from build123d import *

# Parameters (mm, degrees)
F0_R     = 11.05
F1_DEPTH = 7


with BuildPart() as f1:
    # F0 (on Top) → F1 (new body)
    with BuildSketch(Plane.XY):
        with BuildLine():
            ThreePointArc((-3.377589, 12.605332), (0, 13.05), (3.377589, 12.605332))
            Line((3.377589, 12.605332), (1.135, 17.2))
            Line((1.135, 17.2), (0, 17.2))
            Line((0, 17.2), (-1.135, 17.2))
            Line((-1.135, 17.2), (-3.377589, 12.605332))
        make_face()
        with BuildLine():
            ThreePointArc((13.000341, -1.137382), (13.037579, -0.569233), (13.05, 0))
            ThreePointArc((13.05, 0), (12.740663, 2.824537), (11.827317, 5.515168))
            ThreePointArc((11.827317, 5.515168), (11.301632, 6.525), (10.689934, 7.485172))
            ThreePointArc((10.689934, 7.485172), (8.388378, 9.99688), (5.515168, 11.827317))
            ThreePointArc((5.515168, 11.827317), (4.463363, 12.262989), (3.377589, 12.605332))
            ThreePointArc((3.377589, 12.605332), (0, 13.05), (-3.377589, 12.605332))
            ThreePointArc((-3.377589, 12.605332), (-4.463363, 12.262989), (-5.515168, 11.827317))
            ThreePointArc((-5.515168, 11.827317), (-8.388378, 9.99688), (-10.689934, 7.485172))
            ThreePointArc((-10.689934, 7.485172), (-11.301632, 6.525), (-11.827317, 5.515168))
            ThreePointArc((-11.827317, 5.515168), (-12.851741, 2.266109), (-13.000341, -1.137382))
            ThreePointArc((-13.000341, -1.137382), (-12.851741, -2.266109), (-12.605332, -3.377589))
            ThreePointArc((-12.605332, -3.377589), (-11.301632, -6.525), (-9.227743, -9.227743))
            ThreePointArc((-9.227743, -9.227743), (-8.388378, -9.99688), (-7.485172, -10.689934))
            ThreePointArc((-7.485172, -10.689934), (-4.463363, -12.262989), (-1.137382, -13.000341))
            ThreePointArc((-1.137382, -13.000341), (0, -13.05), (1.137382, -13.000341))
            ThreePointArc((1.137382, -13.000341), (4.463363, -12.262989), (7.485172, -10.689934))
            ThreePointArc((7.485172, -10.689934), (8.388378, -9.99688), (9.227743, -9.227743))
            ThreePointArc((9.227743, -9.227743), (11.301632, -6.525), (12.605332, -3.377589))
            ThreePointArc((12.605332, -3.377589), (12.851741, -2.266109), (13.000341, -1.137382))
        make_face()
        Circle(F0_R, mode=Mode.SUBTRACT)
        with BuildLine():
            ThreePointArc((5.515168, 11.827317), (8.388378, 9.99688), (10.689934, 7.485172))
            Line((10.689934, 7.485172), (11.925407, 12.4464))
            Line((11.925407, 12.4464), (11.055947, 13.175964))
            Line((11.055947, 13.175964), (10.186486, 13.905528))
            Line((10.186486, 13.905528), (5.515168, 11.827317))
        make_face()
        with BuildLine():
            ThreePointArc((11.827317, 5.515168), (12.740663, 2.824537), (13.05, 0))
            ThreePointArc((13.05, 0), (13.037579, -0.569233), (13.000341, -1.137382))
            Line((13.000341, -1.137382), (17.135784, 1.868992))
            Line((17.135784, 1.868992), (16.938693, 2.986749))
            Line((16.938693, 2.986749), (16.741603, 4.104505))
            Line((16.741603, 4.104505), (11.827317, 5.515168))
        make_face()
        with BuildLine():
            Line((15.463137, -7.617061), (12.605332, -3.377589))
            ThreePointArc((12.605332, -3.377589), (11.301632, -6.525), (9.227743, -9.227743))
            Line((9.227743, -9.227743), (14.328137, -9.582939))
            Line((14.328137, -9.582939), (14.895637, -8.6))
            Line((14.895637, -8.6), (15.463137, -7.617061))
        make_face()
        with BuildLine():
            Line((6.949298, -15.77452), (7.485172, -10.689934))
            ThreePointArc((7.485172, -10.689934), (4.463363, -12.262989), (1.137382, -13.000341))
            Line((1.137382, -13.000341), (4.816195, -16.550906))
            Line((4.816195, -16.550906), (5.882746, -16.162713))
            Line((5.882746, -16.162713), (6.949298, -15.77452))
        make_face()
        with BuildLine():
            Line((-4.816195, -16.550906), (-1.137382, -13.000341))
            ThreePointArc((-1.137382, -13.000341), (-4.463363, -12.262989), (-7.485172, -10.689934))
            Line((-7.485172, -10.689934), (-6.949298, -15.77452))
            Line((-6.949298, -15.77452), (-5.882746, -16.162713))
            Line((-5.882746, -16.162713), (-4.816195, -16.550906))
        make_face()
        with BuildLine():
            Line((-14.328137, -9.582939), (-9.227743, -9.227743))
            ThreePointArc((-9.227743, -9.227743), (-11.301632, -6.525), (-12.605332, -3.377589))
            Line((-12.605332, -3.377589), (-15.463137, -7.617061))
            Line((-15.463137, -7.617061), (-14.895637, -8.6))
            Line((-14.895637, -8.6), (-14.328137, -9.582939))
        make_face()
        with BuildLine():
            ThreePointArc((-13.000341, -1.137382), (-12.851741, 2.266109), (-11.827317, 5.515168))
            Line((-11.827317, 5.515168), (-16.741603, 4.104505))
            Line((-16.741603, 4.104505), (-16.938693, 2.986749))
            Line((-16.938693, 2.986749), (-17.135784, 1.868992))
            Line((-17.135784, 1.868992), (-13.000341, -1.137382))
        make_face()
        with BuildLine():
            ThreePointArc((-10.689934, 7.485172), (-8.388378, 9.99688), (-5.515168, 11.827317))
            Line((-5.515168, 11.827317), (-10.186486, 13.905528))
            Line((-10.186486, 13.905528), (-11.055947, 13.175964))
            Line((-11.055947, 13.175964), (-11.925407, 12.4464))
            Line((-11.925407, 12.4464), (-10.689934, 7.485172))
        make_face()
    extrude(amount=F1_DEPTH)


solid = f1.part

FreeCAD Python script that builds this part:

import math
import FreeCAD as App
import Part
import Sketcher
Q = App.Units.Quantity

doc = App.newDocument("Part")
body = doc.addObject("PartDesign::Body", "Body")

sketch1 = body.newObject("Sketcher::SketchObject", "Sketch")
sketch1.AttachmentSupport = (doc.getObject("XY_Plane"), [""])
sketch1.MapMode = "FlatFace"
sketch1.addGeometry([
    Part.LineSegment(App.Vector(3.377589, 12.605332, 0), App.Vector(1.135, 17.2, 0)),
    Part.LineSegment(App.Vector(1.135, 17.2, 0), App.Vector(-1.135, 17.2, 0)),
    Part.LineSegment(App.Vector(-1.135, 17.2, 0), App.Vector(-3.377589, 12.605332, 0)),
    Part.ArcOfCircle(Part.Circle(App.Vector(-0.000016, 0.000043, 0), App.Vector(0, 0, 1), 13.049954), math.radians(104.999981), math.radians(115.000013)),
    Part.LineSegment(App.Vector(-5.515168, 11.827317, 0), App.Vector(-10.186486, 13.905528, 0)),
    Part.LineSegment(App.Vector(-10.186486, 13.905528, 0), App.Vector(-11.055947, 13.175964, 0)),
    Part.LineSegment(App.Vector(-11.055947, 13.175964, 0), App.Vector(-11.925407, 12.4464, 0)),
    Part.LineSegment(App.Vector(-11.925407, 12.4464, 0), App.Vector(-10.689934, 7.485172, 0)),
    Part.ArcOfCircle(Part.Circle(App.Vector(-0.000121, 0.000066, 0), App.Vector(0, 0, 1), 13.049862), math.radians(144.999932), math.radians(155.000039)),
    Part.LineSegment(App.Vector(-11.827317, 5.515168, 0), App.Vector(-16.741603, 4.104505, 0)),
    Part.LineSegment(App.Vector(-16.741603, 4.104505, 0), App.Vector(-16.938693, 2.986749, 0)),
    Part.LineSegment(App.Vector(-16.938693, 2.986749, 0), App.Vector(-17.135784, 1.868992, 0)),
    Part.LineSegment(App.Vector(-17.135784, 1.868992, 0), App.Vector(-13.000341, -1.137382, 0)),
    Part.ArcOfCircle(Part.Circle(App.Vector(0.000063, 0.000012, 0), App.Vector(0, 0, 1), 13.050064), math.radians(-174.999976), math.radians(-165.000021)),
    Part.LineSegment(App.Vector(-12.605332, -3.377589, 0), App.Vector(-15.463137, -7.617061, 0)),
    Part.LineSegment(App.Vector(-15.463137, -7.617061, 0), App.Vector(-14.328137, -9.582939, 0)),
    Part.LineSegment(App.Vector(-14.328137, -9.582939, 0), App.Vector(-9.227743, -9.227743, 0)),
    Part.ArcOfCircle(Part.Circle(App.Vector(-0.000063, -0.000078, 0), App.Vector(0, 0, 1), 13.0499), math.radians(-135.000045), math.radians(-124.999967)),
    Part.LineSegment(App.Vector(-7.485172, -10.689934, 0), App.Vector(-6.949298, -15.77452, 0)),
    Part.LineSegment(App.Vector(-6.949298, -15.77452, 0), App.Vector(-5.882746, -16.162713, 0)),
    Part.LineSegment(App.Vector(-5.882746, -16.162713, 0), App.Vector(-4.816195, -16.550906, 0)),
    Part.LineSegment(App.Vector(-4.816195, -16.550906, 0), App.Vector(-1.137382, -13.000341, 0)),
    Part.ArcOfCircle(Part.Circle(App.Vector(0, 0.00004, 0), App.Vector(0, 0, 1), 13.05004), math.radians(-94.999983), math.radians(-85.000017)),
    Part.LineSegment(App.Vector(1.137382, -13.000341, 0), App.Vector(4.816195, -16.550906, 0)),
    Part.LineSegment(App.Vector(4.816195, -16.550906, 0), App.Vector(5.882746, -16.162713, 0)),
    Part.LineSegment(App.Vector(5.882746, -16.162713, 0), App.Vector(6.949298, -15.77452, 0)),
    Part.LineSegment(App.Vector(6.949298, -15.77452, 0), App.Vector(7.485172, -10.689934, 0)),
    Part.ArcOfCircle(Part.Circle(App.Vector(0.000063, -0.000078, 0), App.Vector(0, 0, 1), 13.0499), math.radians(-55.000033), math.radians(-44.999955)),
    Part.LineSegment(App.Vector(9.227743, -9.227743, 0), App.Vector(14.328137, -9.582939, 0)),
    Part.LineSegment(App.Vector(14.328137, -9.582939, 0), App.Vector(15.463137, -7.617061, 0)),
    Part.LineSegment(App.Vector(15.463137, -7.617061, 0), App.Vector(12.605332, -3.377589, 0)),
    Part.ArcOfCircle(Part.Circle(App.Vector(-0.000063, 0.000012, 0), App.Vector(0, 0, 1), 13.050064), math.radians(-14.999979), math.radians(-5.000024)),
    Part.LineSegment(App.Vector(13.000341, -1.137382, 0), App.Vector(17.135784, 1.868992, 0)),
    Part.LineSegment(App.Vector(17.135784, 1.868992, 0), App.Vector(16.938693, 2.986749, 0)),
    Part.LineSegment(App.Vector(16.938693, 2.986749, 0), App.Vector(16.741603, 4.104505, 0)),
    Part.LineSegment(App.Vector(16.741603, 4.104505, 0), App.Vector(11.827317, 5.515168, 0)),
    Part.ArcOfCircle(Part.Circle(App.Vector(0.000121, 0.000066, 0), App.Vector(0, 0, 1), 13.049862), math.radians(24.999961), math.radians(35.000068)),
    Part.LineSegment(App.Vector(10.689934, 7.485172, 0), App.Vector(11.925407, 12.4464, 0)),
    Part.LineSegment(App.Vector(11.925407, 12.4464, 0), App.Vector(11.055947, 13.175964, 0)),
    Part.LineSegment(App.Vector(11.055947, 13.175964, 0), App.Vector(10.186486, 13.905528, 0)),
    Part.LineSegment(App.Vector(10.186486, 13.905528, 0), App.Vector(5.515168, 11.827317, 0)),
    Part.ArcOfCircle(Part.Circle(App.Vector(0.000016, 0.000043, 0), App.Vector(0, 0, 1), 13.049954), math.radians(64.999987), math.radians(75.000019)),
    Part.Circle(App.Vector(0, 0, 0), App.Vector(0, 0, 1), 11.05),
], False)
sketch1.addConstraint([
    Sketcher.Constraint("Coincident", 0, 2, 1, 1),
    Sketcher.Constraint("Coincident", 1, 2, 2, 1),
    Sketcher.Constraint("Coincident", 2, 2, 3, 1),
    Sketcher.Constraint("Coincident", 3, 2, 4, 1),
    Sketcher.Constraint("Coincident", 4, 2, 5, 1),
    Sketcher.Constraint("Coincident", 5, 2, 6, 1),
    Sketcher.Constraint("Coincident", 6, 2, 7, 1),
    Sketcher.Constraint("Coincident", 7, 2, 8, 1),
    Sketcher.Constraint("Coincident", 8, 2, 9, 1),
    Sketcher.Constraint("Coincident", 9, 2, 10, 1),
    Sketcher.Constraint("Coincident", 10, 2, 11, 1),
    Sketcher.Constraint("Coincident", 11, 2, 12, 1),
    Sketcher.Constraint("Coincident", 12, 2, 13, 1),
    Sketcher.Constraint("Coincident", 13, 2, 14, 1),
    Sketcher.Constraint("Coincident", 14, 2, 15, 1),
    Sketcher.Constraint("Coincident", 15, 2, 16, 1),
    Sketcher.Constraint("Coincident", 16, 2, 17, 1),
    Sketcher.Constraint("Coincident", 17, 2, 18, 1),
    Sketcher.Constraint("Coincident", 18, 2, 19, 1),
    Sketcher.Constraint("Coincident", 19, 2, 20, 1),
    Sketcher.Constraint("Coincident", 20, 2, 21, 1),
    Sketcher.Constraint("Coincident", 21, 2, 22, 1),
    Sketcher.Constraint("Coincident", 22, 2, 23, 1),
    Sketcher.Constraint("Coincident", 23, 2, 24, 1),
    Sketcher.Constraint("Coincident", 24, 2, 25, 1),
    Sketcher.Constraint("Coincident", 25, 2, 26, 1),
    Sketcher.Constraint("Coincident", 26, 2, 27, 1),
    Sketcher.Constraint("Coincident", 27, 2, 28, 1),
    Sketcher.Constraint("Coincident", 28, 2, 29, 1),
    Sketcher.Constraint("Coincident", 29, 2, 30, 1),
    Sketcher.Constraint("Coincident", 30, 2, 31, 1),
    Sketcher.Constraint("Coincident", 31, 2, 32, 1),
    Sketcher.Constraint("Coincident", 32, 2, 33, 1),
    Sketcher.Constraint("Coincident", 33, 2, 34, 1),
    Sketcher.Constraint("Coincident", 34, 2, 35, 1),
    Sketcher.Constraint("Coincident", 35, 2, 36, 1),
    Sketcher.Constraint("Coincident", 36, 2, 37, 1),
    Sketcher.Constraint("Coincident", 37, 2, 38, 1),
    Sketcher.Constraint("Coincident", 38, 2, 39, 1),
    Sketcher.Constraint("Coincident", 39, 2, 40, 1),
    Sketcher.Constraint("Coincident", 40, 2, 41, 1),
    Sketcher.Constraint("Coincident", 41, 2, 0, 1),
    Sketcher.Constraint("Horizontal", 1),
    Sketcher.Constraint("Coincident", 42, 3, -1, 1),
    Sketcher.Constraint("Equal", 17, 27),
    Sketcher.Constraint("Equal", 13, 31),
    Sketcher.Constraint("Equal", 8, 36),
    Sketcher.Constraint("Equal", 3, 41),
    Sketcher.Constraint("Symmetric", 17, 3, 27, 3, -2),
    Sketcher.Constraint("Symmetric", 13, 3, 31, 3, -2),
    Sketcher.Constraint("Symmetric", 8, 3, 36, 3, -2),
    Sketcher.Constraint("Symmetric", 3, 3, 41, 3, -2),
    Sketcher.Constraint("Symmetric", 21, 2, 22, 2, -2),
    Sketcher.Constraint("Symmetric", 20, 2, 23, 2, -2),
    Sketcher.Constraint("Symmetric", 19, 2, 24, 2, -2),
    Sketcher.Constraint("Symmetric", 18, 2, 25, 2, -2),
    Sketcher.Constraint("Symmetric", 15, 2, 28, 2, -2),
    Sketcher.Constraint("Symmetric", 14, 2, 29, 2, -2),
    Sketcher.Constraint("Symmetric", 11, 2, 32, 2, -2),
    Sketcher.Constraint("Symmetric", 10, 2, 33, 2, -2),
    Sketcher.Constraint("Symmetric", 9, 2, 34, 2, -2),
    Sketcher.Constraint("Symmetric", 6, 2, 37, 2, -2),
    Sketcher.Constraint("Symmetric", 5, 2, 38, 2, -2),
    Sketcher.Constraint("Symmetric", 4, 2, 39, 2, -2),
    Sketcher.Constraint("Parallel", 5, 6),
    Sketcher.Constraint("Parallel", 10, 11),
    Sketcher.Constraint("Parallel", 19, 20),
    Sketcher.Constraint("Horizontal", 17, 2, 26, 2),
    Sketcher.Constraint("Horizontal", 16, 2, 27, 2),
    Sketcher.Constraint("Horizontal", 13, 2, 30, 2),
    Sketcher.Constraint("Horizontal", 12, 2, 31, 2),
    Sketcher.Constraint("Horizontal", 8, 2, 35, 2),
    Sketcher.Constraint("Horizontal", 7, 2, 36, 2),
    Sketcher.Constraint("Horizontal", 3, 2, 40, 2),
    Sketcher.Constraint("Horizontal", 2, 2, 41, 2),
    Sketcher.Constraint("Vertical", 13, 3, 27, 3),
    Sketcher.Constraint("Equal", 0, 2),
    Sketcher.Constraint("Equal", 2, 4),
    Sketcher.Constraint("Equal", 5, 6),
    Sketcher.Constraint("Equal", 4, 7),
    Sketcher.Constraint("Equal", 7, 9),
    Sketcher.Constraint("Equal", 6, 10),
    Sketcher.Constraint("Equal", 10, 11),
    Sketcher.Constraint("Equal", 9, 12),
    Sketcher.Constraint("Equal", 12, 14),
    Sketcher.Constraint("Equal", 14, 16),
    Sketcher.Constraint("Equal", 16, 18),
    Sketcher.Constraint("Equal", 11, 19),
    Sketcher.Constraint("Equal", 19, 20),
    Sketcher.Constraint("Equal", 18, 21),
    Sketcher.Constraint("Diameter", 42, Q("22.1 mm")),
    Sketcher.Constraint("Angle", 5, Q("-140.000016 deg")),
    Sketcher.Constraint("Angle", 11, Q("-100.000014 deg")),
    Sketcher.Constraint("Angle", 15, Q("-60.000004 deg")),
    Sketcher.Constraint("Angle", 19, Q("-19.999991 deg")),
    Sketcher.Constraint("DistanceX", 1, 2, 1, 1, Q("2.27 mm")),
    Sketcher.Constraint("DistanceY", -1, 1, 0, 2, Q("17.2 mm")),
    Sketcher.Constraint("Radius", 17, Q("13.0499 mm")),
    Sketcher.Constraint("Distance", 15, Q("2.27 mm")),
    Sketcher.Constraint("Radius", 22, Q("13.05004 mm")),
    Sketcher.Constraint("Distance", 5, Q("1.135 mm")),
    Sketcher.Constraint("Radius", 3, Q("13.049954 mm")),
    Sketcher.Constraint("Radius", 8, Q("13.049862 mm")),
    Sketcher.Constraint("Radius", 13, Q("13.050064 mm")),
    Sketcher.Constraint("DistanceY", -1, 1, 6, 2, Q("12.4464 mm")),
    Sketcher.Constraint("DistanceX", 12, 2, 16, 2, Q("3.772598 mm")),
    Sketcher.Constraint("DistanceY", 21, 2, 16, 2, Q("3.772598 mm")),
    Sketcher.Constraint("DistanceX", 8, 3, -1, 1, Q("0.000121 mm")),
    Sketcher.Constraint("DistanceX", 2, 2, -1, 1, Q("3.377589 mm")),
    Sketcher.Constraint("DistanceX", 3, 2, -1, 1, Q("5.515168 mm")),
    Sketcher.Constraint("DistanceY", -1, 1, 10, 2, Q("2.986749 mm")),
    Sketcher.Constraint("DistanceX", 12, 2, -1, 1, Q("13.000341 mm")),
    Sketcher.Constraint("DistanceY", 12, 2, -1, 1, Q("1.137382 mm")),
    Sketcher.Constraint("DistanceY", 13, 2, -1, 1, Q("3.377589 mm")),
    Sketcher.Constraint("DistanceY", 14, 2, -1, 1, Q("7.617061 mm")),
    Sketcher.Constraint("DistanceY", 18, 2, -1, 1, Q("15.77452 mm")),
    Sketcher.Constraint("DistanceX", 21, 2, -1, 1, Q("1.137382 mm")),
    Sketcher.Constraint("DistanceY", 21, 2, -1, 1, Q("13.000341 mm")),
    Sketcher.Constraint("DistanceY", -1, 1, 36, 2, Q("7.485172 mm")),
    Sketcher.Constraint("DistanceY", 17, 3, 3, 3, Q("0.000121 mm")),
    Sketcher.Constraint("DistanceY", 3, 3, 2, 2, Q("12.605289 mm")),
])
pad1 = body.newObject("PartDesign::Pad", "Pad")
pad1.Profile = sketch1
pad1.Length = 7

doc.recompute()
